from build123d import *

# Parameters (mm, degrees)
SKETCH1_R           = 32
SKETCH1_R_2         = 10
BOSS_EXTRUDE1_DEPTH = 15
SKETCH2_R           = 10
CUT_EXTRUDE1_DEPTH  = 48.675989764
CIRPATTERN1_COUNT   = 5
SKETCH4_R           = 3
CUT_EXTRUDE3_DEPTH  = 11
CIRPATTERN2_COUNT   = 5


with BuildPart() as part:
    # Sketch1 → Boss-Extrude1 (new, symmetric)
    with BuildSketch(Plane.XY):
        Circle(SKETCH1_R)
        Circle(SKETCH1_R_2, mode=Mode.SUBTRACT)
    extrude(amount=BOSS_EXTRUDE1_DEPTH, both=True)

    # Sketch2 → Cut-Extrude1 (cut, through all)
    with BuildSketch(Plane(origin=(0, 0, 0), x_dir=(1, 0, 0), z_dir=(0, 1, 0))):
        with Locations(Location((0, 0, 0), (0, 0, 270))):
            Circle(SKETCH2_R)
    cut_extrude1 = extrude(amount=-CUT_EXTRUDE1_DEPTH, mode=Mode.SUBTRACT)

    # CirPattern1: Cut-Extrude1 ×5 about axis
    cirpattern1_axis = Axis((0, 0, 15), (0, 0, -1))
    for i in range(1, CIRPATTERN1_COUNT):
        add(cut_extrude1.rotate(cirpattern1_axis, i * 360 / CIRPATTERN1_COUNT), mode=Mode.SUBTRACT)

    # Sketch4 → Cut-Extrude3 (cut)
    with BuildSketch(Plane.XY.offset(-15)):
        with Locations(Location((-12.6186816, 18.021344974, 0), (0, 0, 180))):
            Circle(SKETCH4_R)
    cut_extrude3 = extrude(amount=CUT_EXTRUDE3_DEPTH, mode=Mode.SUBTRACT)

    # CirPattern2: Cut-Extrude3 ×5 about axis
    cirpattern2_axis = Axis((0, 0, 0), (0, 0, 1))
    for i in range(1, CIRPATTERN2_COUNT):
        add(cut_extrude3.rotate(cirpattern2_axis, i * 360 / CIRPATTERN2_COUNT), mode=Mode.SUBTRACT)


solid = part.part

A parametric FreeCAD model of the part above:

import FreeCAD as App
import Part
import Sketcher

V = App.Vector
Q = App.Units.Quantity

doc = App.newDocument("Part")
body = doc.addObject("PartDesign::Body", "Body")

sketch1 = body.newObject("Sketcher::SketchObject", "Sketch")
sketch1.AttachmentSupport = (doc.getObject("XY_Plane"), [""])
sketch1.MapMode = "FlatFace"
sketch1.addGeometry(Part.Circle(V(0, 0, 0), V(0, 0, 1), 32), False)
sketch1.addGeometry(Part.Circle(V(0, 0, 0), V(0, 0, 1), 10), False)
sketch1.addConstraint(Sketcher.Constraint("Coincident", 0, 3, -1, 1))
sketch1.addConstraint(Sketcher.Constraint("Coincident", 1, 3, -1, 1))
sketch1.addConstraint(Sketcher.Constraint("Diameter", 0, Q("64 mm")))
sketch1.addConstraint(Sketcher.Constraint("Diameter", 1, Q("20 mm")))
pad1 = body.newObject("PartDesign::Pad", "Pad")
pad1.Profile = sketch1
pad1.Length = 30
pad1.Midplane = True

sketch2 = body.newObject("Sketcher::SketchObject", "Sketch001")
sketch2.AttachmentSupport = (doc.getObject("XZ_Plane"), [""])
sketch2.MapMode = "FlatFace"
sketch2.addGeometry(Part.Circle(V(0, 0, 0), V(0, 0, 1), 10), False)
sketch2.addConstraint(Sketcher.Constraint("Coincident", 0, 3, -1, 1))
sketch2.addConstraint(Sketcher.Constraint("Diameter", 0, Q("20 mm")))
pocket1 = body.newObject("PartDesign::Pocket", "Pocket")
pocket1.Profile = sketch2
pocket1.Type = "ThroughAll"
pocket1.Reversed = True
doc.recompute()

polarpattern = body.newObject("PartDesign::PolarPattern", "PolarPattern")
polarpattern.Originals = [pocket1]
polarpattern.Axis = (doc.getObject("Z_Axis"), [""])
polarpattern.Angle = 360
polarpattern.Occurrences = 5
body.Tip = polarpattern

sketch3 = body.newObject("Sketcher::SketchObject", "Sketch002")
sketch3.AttachmentSupport = (doc.getObject("XY_Plane"), [""])
sketch3.MapMode = "FlatFace"
sketch3.AttachmentOffset = App.Placement(V(0, 0, -15), App.Rotation())
sketch3.addGeometry(Part.Circle(V(-12.618682, 18.021345, 0), V(0, 0, 1), 3), False)
sketch3.addConstraint(Sketcher.Constraint("Diameter", 0, Q("6 mm")))
sketch3.addConstraint(Sketcher.Constraint("DistanceX", 0, 3, -1, 1, Q("12.618682 mm")))
sketch3.addConstraint(Sketcher.Constraint("DistanceY", -1, 1, 0, 3, Q("18.021345 mm")))
pocket2 = body.newObject("PartDesign::Pocket", "Pocket001")
pocket2.Profile = sketch3
pocket2.Length = 11
pocket2.Reversed = True
doc.recompute()

polarpattern2 = body.newObject("PartDesign::PolarPattern", "PolarPattern001")
polarpattern2.Originals = [pocket2]
polarpattern2.Axis = (doc.getObject("Z_Axis"), [""])
polarpattern2.Angle = 360
polarpattern2.Occurrences = 5
body.Tip = polarpattern2

doc.recompute()
